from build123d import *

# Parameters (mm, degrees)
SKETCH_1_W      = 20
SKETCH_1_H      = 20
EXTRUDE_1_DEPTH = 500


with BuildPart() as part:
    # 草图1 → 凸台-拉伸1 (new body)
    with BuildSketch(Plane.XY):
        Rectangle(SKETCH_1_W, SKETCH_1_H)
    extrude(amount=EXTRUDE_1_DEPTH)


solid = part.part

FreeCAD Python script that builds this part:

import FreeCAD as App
import Part
import Sketcher

V = App.Vector
Q = App.Units.Quantity

doc = App.newDocument("Part")
body = doc.addObject("PartDesign::Body", "Body")

# Sketch on XY plane
sketch1 = body.newObject("Sketcher::SketchObject", "Sketch")
sketch1.AttachmentSupport = (doc.getObject("XY_Plane"), [""])
sketch1.MapMode = "FlatFace"
sketch1.addGeometry(Part.LineSegment(V(-10, 10, 0), V(-10, -10, 0)), False)
sketch1.addGeometry(Part.LineSegment(V(-10, -10, 0), V(10, -10, 0)), False)
sketch1.addGeometry(Part.LineSegment(V(10, -10, 0), V(10, 10, 0)), False)
sketch1.addGeometry(Part.LineSegment(V(10, 10, 0), V(-10, 10, 0)), False)
sketch1.addConstraint(Sketcher.Constraint("Coincident", 0, 2, 1, 1))
sketch1.addConstraint(Sketcher.Constraint("Coincident", 1, 2, 2, 1))
sketch1.addConstraint(Sketcher.Constraint("Coincident", 2, 2, 3, 1))
sketch1.addConstraint(Sketcher.Constraint("Coincident", 3, 2, 0, 1))
sketch1.addConstraint(Sketcher.Constraint("Vertical", 0))
sketch1.addConstraint(Sketcher.Constraint("Horizontal", 1))
sketch1.addConstraint(Sketcher.Constraint("Vertical", 2))
sketch1.addConstraint(Sketcher.Constraint("Horizontal", 3))
sketch1.addConstraint(Sketcher.Constraint("Symmetric", 0, 2, 2, 2, -1, 1))
sketch1.addConstraint(Sketcher.Constraint("Equal", 3, 0))
sketch1.addConstraint(Sketcher.Constraint("DistanceX", 1, 1, 1, 2, Q("20 mm")))
pad1 = body.newObject("PartDesign::Pad", "Pad")
pad1.Profile = sketch1
pad1.Length = 500

doc.recompute()
